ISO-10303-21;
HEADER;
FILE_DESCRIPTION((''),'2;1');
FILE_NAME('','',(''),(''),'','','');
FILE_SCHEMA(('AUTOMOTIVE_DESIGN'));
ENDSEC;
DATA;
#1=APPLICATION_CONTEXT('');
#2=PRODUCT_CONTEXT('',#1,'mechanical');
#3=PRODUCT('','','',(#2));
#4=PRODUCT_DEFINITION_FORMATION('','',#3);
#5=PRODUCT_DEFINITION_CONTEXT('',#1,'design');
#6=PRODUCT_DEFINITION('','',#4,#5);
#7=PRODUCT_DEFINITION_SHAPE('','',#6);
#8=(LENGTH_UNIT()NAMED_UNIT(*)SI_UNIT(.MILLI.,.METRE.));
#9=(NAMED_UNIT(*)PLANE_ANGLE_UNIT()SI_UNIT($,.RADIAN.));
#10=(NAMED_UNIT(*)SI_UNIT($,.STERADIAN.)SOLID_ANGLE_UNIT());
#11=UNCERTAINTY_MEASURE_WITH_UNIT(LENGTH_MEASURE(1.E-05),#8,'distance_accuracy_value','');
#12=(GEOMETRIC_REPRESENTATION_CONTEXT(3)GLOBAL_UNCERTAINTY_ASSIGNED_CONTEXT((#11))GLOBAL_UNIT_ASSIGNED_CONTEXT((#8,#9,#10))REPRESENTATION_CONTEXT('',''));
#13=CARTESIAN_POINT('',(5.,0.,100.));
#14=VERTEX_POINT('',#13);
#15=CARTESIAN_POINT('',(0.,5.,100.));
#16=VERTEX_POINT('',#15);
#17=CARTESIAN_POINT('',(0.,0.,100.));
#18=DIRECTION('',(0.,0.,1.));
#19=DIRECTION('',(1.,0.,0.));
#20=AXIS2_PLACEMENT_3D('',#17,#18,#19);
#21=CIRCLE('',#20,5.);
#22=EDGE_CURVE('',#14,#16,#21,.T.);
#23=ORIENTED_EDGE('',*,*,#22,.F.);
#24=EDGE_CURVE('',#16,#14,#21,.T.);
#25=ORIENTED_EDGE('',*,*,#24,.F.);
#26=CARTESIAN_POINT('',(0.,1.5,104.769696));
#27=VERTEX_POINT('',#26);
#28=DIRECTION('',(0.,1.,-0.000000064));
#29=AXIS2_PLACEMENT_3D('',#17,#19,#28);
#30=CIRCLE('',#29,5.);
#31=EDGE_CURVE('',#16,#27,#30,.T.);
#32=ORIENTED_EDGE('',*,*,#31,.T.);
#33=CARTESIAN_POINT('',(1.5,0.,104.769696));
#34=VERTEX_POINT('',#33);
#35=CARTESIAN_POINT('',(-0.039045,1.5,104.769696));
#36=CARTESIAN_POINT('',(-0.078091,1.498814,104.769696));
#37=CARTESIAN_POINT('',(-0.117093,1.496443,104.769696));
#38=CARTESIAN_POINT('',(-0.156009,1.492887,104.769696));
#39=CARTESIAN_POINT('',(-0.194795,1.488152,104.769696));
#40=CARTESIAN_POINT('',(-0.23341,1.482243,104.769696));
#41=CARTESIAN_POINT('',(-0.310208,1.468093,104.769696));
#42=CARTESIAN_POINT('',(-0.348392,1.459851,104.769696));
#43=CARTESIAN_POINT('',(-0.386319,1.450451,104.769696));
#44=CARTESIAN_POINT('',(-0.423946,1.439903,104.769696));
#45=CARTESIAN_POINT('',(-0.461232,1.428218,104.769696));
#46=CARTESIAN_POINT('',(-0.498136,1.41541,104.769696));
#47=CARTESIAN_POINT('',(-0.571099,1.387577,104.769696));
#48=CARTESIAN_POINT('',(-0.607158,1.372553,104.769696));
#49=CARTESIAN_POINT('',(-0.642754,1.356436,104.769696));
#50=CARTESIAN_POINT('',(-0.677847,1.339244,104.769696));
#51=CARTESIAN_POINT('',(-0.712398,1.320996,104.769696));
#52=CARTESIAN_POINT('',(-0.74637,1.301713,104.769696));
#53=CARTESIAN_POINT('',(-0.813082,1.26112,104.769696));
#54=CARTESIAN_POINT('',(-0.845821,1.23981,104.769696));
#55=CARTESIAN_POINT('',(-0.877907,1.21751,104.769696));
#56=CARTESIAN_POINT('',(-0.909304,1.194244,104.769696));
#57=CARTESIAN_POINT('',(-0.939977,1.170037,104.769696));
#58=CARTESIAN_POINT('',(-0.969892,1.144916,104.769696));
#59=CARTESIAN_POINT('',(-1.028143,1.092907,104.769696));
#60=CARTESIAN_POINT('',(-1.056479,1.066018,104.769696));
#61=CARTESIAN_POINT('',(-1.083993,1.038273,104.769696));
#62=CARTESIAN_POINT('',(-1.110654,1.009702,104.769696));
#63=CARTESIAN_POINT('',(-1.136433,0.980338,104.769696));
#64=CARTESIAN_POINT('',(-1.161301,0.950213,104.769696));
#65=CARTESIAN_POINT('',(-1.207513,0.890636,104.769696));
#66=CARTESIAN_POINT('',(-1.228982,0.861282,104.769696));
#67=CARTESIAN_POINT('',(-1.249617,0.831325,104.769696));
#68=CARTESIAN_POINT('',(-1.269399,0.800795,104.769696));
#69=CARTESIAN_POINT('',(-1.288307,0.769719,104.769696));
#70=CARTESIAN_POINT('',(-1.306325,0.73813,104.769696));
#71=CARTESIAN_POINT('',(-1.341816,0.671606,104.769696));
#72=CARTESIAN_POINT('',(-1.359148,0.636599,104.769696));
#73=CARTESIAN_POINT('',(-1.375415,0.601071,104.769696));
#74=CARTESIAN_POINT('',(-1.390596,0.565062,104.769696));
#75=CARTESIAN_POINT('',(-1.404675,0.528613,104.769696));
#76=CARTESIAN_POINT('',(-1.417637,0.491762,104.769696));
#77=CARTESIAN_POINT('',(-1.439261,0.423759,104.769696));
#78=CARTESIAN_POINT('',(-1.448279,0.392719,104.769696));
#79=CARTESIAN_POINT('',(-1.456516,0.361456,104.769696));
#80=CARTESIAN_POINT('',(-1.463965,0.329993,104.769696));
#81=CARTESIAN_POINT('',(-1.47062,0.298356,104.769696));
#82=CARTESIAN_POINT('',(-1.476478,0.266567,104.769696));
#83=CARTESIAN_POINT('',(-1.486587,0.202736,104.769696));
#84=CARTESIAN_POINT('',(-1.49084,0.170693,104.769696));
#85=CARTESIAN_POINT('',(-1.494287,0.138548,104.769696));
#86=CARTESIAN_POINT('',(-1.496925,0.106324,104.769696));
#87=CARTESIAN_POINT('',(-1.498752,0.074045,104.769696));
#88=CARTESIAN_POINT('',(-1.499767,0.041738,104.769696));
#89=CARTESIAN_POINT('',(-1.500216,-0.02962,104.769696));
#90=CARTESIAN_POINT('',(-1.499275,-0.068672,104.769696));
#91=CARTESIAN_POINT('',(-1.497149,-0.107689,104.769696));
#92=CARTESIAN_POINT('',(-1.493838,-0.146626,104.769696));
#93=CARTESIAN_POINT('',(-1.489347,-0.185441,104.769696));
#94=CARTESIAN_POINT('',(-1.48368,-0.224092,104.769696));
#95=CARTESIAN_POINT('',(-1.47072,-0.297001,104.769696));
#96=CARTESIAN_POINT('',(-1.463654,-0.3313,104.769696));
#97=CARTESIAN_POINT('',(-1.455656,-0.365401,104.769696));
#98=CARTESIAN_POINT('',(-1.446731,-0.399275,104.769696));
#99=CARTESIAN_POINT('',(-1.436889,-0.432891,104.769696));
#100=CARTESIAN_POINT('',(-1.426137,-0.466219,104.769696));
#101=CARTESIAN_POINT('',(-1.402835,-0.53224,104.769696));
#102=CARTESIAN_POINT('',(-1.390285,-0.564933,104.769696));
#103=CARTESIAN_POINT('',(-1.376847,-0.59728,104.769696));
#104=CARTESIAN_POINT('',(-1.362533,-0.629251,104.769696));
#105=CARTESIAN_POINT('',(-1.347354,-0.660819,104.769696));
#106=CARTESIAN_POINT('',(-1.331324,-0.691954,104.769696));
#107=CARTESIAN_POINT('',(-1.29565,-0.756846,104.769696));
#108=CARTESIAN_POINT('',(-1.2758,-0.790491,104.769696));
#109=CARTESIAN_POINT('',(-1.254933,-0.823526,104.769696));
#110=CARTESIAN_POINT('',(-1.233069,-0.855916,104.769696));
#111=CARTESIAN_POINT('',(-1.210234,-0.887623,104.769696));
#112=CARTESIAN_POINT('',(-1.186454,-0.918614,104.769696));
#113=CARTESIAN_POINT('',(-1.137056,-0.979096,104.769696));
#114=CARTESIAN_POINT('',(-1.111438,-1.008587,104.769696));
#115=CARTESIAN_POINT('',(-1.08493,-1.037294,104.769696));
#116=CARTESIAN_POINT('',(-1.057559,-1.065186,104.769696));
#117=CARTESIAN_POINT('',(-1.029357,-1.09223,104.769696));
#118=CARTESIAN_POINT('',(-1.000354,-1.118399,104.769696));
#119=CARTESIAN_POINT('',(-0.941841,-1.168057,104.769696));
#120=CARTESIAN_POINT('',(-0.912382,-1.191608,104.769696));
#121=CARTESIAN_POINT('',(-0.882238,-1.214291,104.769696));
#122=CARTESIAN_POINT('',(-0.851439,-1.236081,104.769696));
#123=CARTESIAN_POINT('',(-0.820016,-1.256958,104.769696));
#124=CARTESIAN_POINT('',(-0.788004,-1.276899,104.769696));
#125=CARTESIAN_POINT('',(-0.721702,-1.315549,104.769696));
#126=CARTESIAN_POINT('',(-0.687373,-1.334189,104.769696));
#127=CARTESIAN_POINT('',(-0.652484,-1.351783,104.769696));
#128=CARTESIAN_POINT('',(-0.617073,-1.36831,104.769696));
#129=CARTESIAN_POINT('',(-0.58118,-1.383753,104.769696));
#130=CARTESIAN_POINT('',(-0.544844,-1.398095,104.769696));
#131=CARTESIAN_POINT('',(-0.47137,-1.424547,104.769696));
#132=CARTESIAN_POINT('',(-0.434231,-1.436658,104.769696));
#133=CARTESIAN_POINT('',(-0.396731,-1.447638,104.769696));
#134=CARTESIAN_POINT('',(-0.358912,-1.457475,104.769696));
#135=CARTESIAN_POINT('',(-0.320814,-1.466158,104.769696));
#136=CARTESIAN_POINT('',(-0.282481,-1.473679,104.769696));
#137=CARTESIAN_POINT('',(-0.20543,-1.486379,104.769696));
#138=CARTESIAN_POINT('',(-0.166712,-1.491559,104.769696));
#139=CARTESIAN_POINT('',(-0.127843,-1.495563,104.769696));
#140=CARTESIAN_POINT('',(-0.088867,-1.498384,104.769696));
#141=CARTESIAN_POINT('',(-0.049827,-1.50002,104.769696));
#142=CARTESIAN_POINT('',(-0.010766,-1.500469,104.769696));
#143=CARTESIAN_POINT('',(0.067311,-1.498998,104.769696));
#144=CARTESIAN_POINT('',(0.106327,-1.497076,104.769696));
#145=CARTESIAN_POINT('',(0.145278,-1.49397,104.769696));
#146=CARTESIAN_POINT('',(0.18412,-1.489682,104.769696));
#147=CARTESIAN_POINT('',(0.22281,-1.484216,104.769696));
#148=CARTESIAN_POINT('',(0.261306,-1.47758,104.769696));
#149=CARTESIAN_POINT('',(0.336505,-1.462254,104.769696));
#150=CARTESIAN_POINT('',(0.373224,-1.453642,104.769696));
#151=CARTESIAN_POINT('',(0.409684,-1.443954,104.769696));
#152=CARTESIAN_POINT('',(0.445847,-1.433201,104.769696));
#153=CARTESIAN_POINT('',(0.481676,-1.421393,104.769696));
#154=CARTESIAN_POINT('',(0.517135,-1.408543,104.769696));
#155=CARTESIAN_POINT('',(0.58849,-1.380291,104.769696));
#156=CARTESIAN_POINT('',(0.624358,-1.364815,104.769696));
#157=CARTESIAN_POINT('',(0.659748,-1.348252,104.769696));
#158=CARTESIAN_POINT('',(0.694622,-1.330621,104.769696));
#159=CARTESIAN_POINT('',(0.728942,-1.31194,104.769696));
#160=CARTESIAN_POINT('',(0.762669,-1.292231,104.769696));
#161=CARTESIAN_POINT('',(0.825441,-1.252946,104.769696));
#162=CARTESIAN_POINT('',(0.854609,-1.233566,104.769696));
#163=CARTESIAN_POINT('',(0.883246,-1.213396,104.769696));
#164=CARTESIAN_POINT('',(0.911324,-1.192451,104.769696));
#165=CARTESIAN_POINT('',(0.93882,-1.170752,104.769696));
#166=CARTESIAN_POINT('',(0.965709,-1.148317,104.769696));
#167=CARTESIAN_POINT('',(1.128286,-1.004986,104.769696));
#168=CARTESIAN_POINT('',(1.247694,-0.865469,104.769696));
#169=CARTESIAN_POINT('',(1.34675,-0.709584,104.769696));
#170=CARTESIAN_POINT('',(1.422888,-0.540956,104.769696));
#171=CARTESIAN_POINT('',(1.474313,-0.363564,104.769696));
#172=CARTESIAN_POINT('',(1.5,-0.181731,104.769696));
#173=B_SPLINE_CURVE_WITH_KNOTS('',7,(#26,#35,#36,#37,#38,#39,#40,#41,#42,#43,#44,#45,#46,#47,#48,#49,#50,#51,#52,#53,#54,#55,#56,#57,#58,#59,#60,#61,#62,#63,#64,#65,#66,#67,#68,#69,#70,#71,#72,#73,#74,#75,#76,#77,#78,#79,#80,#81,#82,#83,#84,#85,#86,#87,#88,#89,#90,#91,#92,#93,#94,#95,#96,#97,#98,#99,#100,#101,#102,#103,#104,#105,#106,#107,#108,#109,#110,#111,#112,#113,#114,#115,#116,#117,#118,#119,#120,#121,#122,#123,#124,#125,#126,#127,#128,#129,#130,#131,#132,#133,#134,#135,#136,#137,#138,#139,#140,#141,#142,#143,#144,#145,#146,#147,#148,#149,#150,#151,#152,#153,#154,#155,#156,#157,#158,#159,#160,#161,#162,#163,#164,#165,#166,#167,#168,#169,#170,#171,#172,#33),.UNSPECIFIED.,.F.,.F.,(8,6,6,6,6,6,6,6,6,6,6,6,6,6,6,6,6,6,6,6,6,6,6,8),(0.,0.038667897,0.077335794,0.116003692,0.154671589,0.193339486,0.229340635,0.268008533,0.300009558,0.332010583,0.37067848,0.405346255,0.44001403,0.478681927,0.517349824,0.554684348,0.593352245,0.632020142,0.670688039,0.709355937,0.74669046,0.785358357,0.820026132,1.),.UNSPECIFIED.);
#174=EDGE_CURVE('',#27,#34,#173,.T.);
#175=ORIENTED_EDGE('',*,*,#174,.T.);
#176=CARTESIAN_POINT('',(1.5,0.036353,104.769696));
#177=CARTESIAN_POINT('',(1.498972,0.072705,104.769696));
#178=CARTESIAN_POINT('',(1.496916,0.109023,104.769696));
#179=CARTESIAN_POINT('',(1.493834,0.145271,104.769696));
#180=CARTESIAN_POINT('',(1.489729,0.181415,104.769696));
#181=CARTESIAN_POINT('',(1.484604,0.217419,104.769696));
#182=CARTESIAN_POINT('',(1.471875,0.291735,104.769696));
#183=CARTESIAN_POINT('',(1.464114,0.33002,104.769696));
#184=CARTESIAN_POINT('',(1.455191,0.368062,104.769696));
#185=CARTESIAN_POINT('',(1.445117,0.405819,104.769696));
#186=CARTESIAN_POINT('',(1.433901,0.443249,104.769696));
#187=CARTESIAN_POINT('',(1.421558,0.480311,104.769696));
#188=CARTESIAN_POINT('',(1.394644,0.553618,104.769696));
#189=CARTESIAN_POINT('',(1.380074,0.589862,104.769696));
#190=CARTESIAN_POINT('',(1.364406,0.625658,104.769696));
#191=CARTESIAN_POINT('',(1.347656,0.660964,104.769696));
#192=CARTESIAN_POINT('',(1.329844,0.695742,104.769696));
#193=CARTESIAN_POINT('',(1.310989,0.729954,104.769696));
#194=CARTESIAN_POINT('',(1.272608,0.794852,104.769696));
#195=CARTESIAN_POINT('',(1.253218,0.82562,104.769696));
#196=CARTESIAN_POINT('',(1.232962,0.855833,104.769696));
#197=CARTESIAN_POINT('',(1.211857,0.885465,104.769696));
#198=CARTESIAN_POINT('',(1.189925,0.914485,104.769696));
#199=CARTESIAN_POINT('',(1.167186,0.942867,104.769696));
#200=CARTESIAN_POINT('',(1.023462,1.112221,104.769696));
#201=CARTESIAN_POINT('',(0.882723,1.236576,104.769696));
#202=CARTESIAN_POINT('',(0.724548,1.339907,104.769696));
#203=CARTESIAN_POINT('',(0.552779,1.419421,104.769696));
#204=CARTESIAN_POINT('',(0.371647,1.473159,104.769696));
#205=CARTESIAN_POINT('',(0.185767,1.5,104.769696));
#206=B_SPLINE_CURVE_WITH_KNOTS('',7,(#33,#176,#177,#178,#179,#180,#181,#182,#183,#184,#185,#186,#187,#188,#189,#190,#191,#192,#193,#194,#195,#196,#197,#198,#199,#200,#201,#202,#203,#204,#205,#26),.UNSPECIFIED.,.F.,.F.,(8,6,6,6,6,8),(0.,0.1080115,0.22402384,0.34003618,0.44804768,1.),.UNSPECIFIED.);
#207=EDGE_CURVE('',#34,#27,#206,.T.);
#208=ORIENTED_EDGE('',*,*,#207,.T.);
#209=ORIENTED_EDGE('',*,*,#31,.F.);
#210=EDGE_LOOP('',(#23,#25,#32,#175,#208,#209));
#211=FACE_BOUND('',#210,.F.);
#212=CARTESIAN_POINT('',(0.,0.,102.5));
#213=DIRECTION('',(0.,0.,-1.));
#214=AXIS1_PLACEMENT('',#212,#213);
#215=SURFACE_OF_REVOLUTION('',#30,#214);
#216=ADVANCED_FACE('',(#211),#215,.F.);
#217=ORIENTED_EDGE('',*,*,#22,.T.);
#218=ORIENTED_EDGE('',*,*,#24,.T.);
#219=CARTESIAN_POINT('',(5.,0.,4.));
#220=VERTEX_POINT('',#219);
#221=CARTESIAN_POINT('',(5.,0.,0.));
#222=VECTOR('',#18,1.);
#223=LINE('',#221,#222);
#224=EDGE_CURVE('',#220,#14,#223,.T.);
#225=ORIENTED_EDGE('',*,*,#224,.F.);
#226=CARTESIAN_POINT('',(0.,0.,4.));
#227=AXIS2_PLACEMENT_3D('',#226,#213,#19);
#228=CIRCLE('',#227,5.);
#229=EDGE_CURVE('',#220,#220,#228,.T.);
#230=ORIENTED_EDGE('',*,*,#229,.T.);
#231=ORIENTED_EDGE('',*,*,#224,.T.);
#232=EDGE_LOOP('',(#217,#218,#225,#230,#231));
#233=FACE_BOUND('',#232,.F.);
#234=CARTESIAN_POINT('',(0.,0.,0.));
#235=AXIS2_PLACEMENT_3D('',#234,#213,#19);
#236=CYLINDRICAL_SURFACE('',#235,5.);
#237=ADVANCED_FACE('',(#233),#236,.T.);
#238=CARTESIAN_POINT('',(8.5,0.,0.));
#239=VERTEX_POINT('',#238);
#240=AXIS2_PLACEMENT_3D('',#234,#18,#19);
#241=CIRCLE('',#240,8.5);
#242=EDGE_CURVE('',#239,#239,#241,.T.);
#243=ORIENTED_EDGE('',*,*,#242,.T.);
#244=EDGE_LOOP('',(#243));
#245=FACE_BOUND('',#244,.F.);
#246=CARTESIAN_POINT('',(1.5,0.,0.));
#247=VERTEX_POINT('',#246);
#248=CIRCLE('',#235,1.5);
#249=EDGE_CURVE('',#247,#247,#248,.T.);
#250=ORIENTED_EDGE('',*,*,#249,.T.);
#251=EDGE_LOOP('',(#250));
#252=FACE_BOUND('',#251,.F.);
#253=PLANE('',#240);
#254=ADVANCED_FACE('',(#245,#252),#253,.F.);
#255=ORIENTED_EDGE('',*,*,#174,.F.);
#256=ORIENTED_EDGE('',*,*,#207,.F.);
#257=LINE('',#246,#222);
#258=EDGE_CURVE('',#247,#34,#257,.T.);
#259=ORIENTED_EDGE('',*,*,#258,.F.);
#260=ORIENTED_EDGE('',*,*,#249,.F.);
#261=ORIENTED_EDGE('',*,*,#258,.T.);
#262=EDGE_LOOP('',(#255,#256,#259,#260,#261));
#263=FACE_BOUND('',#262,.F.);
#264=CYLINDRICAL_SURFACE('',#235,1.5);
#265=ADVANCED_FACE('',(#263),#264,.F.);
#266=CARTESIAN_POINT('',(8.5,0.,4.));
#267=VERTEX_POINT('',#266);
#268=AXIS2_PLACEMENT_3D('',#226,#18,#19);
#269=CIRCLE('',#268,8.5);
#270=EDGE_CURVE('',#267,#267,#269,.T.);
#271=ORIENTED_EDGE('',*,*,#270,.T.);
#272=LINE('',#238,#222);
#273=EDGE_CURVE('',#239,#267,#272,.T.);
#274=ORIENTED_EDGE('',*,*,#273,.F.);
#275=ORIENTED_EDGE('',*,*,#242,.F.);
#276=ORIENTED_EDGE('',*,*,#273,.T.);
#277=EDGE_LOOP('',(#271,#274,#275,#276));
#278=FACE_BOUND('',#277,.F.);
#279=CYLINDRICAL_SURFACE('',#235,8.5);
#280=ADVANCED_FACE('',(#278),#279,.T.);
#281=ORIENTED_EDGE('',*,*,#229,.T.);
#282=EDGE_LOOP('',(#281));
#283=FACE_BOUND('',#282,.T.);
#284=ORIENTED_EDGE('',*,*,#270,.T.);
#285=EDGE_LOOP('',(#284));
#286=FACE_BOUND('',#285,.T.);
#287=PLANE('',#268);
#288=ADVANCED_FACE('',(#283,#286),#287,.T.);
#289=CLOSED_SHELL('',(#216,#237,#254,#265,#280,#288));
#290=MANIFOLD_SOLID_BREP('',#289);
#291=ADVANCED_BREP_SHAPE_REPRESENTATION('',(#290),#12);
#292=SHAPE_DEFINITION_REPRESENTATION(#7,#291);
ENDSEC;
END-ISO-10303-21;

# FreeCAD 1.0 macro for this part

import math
import FreeCAD as App
import Part
import Sketcher
from FreeCAD import Vector
Q = App.Units.Quantity

doc = App.newDocument("Part")
body = doc.addObject("PartDesign::Body", "Body")

sketch1 = body.newObject("Sketcher::SketchObject", "Sketch")
sketch1.AttachmentSupport = (doc.getObject("XY_Plane"), [""])
sketch1.MapMode = "FlatFace"
sketch1.addGeometry(Part.Circle(Vector(0, 0, 0), Vector(0, 0, 1), 8.5), False)
sketch1.addConstraint([
    Sketcher.Constraint("Coincident", 0, 3, -1, 1),
    Sketcher.Constraint("Diameter", 0, Q("17 mm")),
])
pad1 = body.newObject("PartDesign::Pad", "Pad")
pad1.Profile = sketch1
pad1.Length = 4

sketch2 = body.newObject("Sketcher::SketchObject", "Sketch001")
sketch2.AttachmentSupport = (doc.getObject("XY_Plane"), [""])
sketch2.MapMode = "FlatFace"
sketch2.addGeometry(Part.Circle(Vector(0, 0, 0), Vector(0, 0, 1), 5), False)
sketch2.addConstraint([
    Sketcher.Constraint("Coincident", 0, 3, -1, 1),
    Sketcher.Constraint("Diameter", 0, Q("10 mm")),
])
pad2 = body.newObject("PartDesign::Pad", "Pad001")
pad2.Profile = sketch2
pad2.Length = 100

sketch3 = body.newObject("Sketcher::SketchObject", "Sketch002")
sketch3.AttachmentSupport = (doc.getObject("YZ_Plane"), [""])
sketch3.MapMode = "FlatFace"
sketch3.addGeometry([
    Part.LineSegment(Vector(0, 100, 0), Vector(5, 100, 0)),
    Part.ArcOfCircle(Part.Circle(Vector(0, 100, 0), Vector(0, 0, 1), 5), math.radians(-0.000004), math.radians(90.000004)),
    Part.LineSegment(Vector(0, 105, 0), Vector(0, 100, 0)),
], False)
sketch3.addConstraint([
    Sketcher.Constraint("Coincident", 0, 2, 1, 1),
    Sketcher.Constraint("Coincident", 1, 2, 2, 1),
    Sketcher.Constraint("Coincident", 2, 2, 0, 1),
    Sketcher.Constraint("Horizontal", 0),
    Sketcher.Constraint("Vertical", 2),
    Sketcher.Constraint("Coincident", 2, 2, 1, 3),
    Sketcher.Constraint("PointOnObject", 1, 3, -2),
    Sketcher.Constraint("Radius", 1, Q("5 mm")),
    Sketcher.Constraint("DistanceY", -1, 1, 1, 3, Q("100 mm")),
])
revolution = body.newObject("PartDesign::Revolution", "Revolution")
revolution.Profile = sketch3
revolution.ReferenceAxis = (sketch3, ["V_Axis"])
revolution.Angle = 360

sketch4 = body.newObject("Sketcher::SketchObject", "Sketch003")
sketch4.AttachmentSupport = (doc.getObject("XY_Plane"), [""])
sketch4.MapMode = "FlatFace"
sketch4.addGeometry(Part.Circle(Vector(0, 0, 0), Vector(0, 0, 1), 1.5), False)
sketch4.addConstraint([
    Sketcher.Constraint("Coincident", 0, 3, -1, 1),
    Sketcher.Constraint("Diameter", 0, Q("3 mm")),
])
pocket1 = body.newObject("PartDesign::Pocket", "Pocket")
pocket1.Profile = sketch4
pocket1.Length = 133.7
pocket1.Reversed = True

doc.recompute()
